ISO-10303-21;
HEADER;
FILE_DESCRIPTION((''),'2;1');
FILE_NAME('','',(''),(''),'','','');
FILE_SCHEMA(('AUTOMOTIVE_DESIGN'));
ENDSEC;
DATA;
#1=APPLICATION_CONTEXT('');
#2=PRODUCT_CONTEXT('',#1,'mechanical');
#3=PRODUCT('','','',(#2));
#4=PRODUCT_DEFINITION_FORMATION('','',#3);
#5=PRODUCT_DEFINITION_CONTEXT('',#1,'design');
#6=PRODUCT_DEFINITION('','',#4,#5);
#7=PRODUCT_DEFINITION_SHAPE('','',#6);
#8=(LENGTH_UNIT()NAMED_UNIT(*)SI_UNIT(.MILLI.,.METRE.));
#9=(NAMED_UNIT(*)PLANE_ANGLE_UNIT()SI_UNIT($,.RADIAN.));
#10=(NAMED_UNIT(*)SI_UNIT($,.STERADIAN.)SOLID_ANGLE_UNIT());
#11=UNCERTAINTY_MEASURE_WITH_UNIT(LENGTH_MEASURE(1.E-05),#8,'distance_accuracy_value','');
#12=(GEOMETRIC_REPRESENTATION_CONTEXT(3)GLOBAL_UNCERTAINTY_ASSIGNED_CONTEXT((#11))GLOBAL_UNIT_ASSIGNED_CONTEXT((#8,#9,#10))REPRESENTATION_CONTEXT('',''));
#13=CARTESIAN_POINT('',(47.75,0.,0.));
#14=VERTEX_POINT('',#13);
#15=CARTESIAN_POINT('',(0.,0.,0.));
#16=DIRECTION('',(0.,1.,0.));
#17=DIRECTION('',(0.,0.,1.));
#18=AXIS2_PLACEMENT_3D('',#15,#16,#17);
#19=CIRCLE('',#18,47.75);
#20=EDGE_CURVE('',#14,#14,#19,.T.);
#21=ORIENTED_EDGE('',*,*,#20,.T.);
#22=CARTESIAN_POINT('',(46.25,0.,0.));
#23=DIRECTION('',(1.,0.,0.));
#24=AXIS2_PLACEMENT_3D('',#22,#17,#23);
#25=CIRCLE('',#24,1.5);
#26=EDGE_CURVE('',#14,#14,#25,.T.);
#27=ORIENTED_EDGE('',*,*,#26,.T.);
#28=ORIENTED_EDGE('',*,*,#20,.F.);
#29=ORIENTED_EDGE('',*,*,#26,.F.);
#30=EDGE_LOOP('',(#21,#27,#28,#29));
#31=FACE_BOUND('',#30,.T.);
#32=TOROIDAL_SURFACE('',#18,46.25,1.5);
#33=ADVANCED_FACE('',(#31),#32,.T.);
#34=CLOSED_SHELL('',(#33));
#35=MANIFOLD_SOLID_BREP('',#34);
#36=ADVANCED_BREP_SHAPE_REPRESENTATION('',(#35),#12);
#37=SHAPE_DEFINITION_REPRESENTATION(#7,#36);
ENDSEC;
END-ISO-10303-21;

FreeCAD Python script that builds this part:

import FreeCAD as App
import Part
import Sketcher
from FreeCAD import Vector
Q = App.Units.Quantity

doc = App.newDocument("Part")
body = doc.addObject("PartDesign::Body", "Body")

# Sketch on XY plane
sketch1 = body.newObject("Sketcher::SketchObject", "Sketch")
sketch1.AttachmentSupport = (doc.getObject("XY_Plane"), [""])
sketch1.MapMode = "FlatFace"
sketch1.addGeometry(Part.Circle(Vector(46.2, 0, 0), Vector(0, 0, 1), 1.5), False)
sketch1.addConstraint([
    Sketcher.Constraint("PointOnObject", 0, 3, -1),
    Sketcher.Constraint("Diameter", 0, Q("3 mm")),
    Sketcher.Constraint("DistanceX", -1, 1, 0, 3, Q("46.25 mm")),
])

# Sketch on XZ plane
sketch2 = body.newObject("Sketcher::SketchObject", "Sketch001")
sketch2.AttachmentSupport = (doc.getObject("XZ_Plane"), [""])
sketch2.MapMode = "FlatFace"
sketch2.addGeometry(Part.Circle(Vector(0, 0, 0), Vector(0, 0, 1), 46), False)
sketch2.addConstraint([
    Sketcher.Constraint("Coincident", 0, 3, -1, 1),
    Sketcher.Constraint("Diameter", 0, Q("92.5 mm")),
])
doc.recompute()

additivepipe = body.newObject("PartDesign::AdditivePipe", "AdditivePipe")
additivepipe.Profile = sketch1
additivepipe.Spine = (sketch2, ["Edge1"])

doc.recompute()
